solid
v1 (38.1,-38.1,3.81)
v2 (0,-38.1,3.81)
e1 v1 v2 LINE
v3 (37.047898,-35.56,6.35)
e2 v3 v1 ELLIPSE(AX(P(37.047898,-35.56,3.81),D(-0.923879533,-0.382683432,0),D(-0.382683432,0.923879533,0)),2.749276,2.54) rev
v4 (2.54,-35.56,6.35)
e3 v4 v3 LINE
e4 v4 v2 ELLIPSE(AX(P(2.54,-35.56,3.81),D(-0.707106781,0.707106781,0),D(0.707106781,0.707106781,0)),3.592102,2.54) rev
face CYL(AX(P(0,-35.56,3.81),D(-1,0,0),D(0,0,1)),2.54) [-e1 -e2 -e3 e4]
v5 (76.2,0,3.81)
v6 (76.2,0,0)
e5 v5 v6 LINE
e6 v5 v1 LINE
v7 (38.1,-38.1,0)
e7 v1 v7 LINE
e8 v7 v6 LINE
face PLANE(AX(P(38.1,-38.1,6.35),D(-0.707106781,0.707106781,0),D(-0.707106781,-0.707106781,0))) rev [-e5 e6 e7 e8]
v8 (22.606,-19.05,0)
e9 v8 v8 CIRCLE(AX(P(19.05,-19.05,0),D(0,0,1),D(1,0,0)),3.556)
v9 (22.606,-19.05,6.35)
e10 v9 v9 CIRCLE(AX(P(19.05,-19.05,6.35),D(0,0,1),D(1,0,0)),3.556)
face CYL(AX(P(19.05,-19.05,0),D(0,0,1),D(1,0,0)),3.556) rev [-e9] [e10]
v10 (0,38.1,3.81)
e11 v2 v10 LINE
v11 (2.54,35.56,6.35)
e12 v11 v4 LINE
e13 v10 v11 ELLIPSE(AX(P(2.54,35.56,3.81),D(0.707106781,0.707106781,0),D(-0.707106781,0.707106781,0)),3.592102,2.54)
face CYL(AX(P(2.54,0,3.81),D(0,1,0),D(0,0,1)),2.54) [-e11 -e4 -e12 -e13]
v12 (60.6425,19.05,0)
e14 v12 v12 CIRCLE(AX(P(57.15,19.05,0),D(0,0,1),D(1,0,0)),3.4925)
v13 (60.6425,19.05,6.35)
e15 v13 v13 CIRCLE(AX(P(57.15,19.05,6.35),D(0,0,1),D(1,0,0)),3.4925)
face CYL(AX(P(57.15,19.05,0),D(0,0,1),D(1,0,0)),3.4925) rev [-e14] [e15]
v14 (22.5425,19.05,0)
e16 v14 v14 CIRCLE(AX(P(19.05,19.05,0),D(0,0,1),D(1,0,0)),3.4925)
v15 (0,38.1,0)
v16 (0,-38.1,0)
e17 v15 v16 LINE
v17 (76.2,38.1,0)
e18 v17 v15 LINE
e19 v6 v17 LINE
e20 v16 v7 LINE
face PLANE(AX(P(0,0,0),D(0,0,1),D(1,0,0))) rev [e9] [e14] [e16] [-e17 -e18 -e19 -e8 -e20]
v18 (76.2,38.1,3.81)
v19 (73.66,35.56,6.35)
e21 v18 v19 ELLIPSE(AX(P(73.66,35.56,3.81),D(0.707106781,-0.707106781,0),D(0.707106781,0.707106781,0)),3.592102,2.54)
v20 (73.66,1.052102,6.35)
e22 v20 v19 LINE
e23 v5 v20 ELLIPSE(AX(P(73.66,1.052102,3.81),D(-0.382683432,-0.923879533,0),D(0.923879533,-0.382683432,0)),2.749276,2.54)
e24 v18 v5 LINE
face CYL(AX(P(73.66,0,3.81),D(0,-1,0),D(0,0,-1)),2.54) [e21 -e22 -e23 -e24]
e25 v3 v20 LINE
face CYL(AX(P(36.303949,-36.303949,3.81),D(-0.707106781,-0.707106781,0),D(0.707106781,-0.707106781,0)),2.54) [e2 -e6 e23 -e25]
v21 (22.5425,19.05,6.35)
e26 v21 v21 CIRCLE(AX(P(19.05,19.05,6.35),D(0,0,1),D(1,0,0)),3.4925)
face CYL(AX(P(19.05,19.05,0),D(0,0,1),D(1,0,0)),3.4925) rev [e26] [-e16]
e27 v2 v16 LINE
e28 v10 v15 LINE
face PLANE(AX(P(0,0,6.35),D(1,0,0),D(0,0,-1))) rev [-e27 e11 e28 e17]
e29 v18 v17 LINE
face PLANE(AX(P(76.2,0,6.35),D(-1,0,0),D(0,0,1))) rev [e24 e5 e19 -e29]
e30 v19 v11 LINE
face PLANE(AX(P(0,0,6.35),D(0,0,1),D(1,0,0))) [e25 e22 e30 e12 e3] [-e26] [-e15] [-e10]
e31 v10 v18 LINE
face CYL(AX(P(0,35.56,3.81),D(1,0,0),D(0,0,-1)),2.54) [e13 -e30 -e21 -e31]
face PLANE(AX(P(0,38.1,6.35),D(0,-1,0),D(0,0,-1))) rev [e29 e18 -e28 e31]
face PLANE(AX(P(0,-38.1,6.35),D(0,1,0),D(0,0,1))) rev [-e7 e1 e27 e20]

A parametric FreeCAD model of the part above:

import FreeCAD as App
import Part
import Sketcher
from FreeCAD import Vector
Q = App.Units.Quantity


def edges_at(feature, points):
    """Names of the edges that pass closest to the given points."""
    edges = feature.Shape.Edges
    near = lambda p: min(range(len(edges)), key=lambda i: edges[i].distToShape(Part.Vertex(*p))[0])
    return sorted({f"Edge{near(p) + 1}" for p in points})

doc = App.newDocument("Part")
body = doc.addObject("PartDesign::Body", "Body")

# Sketch on XY plane
sketch1 = body.newObject("Sketcher::SketchObject", "Sketch")
sketch1.AttachmentSupport = (doc.getObject("XY_Plane"), [""])
sketch1.MapMode = "FlatFace"
sketch1.addGeometry(Part.LineSegment(Vector(38, -38, 0), Vector(76, 0, 0)), False)
sketch1.addGeometry(Part.LineSegment(Vector(76, 0, 0), Vector(76, 38, 0)), False)
sketch1.addGeometry(Part.LineSegment(Vector(76, 38, 0), Vector(0, 38, 0)), False)
sketch1.addGeometry(Part.LineSegment(Vector(0, 38, 0), Vector(0, -38, 0)), False)
sketch1.addGeometry(Part.LineSegment(Vector(0, -38, 0), Vector(38, -38, 0)), False)
sketch1.addConstraint(Sketcher.Constraint("Coincident", 0, 2, 1, 1))
sketch1.addConstraint(Sketcher.Constraint("Coincident", 1, 2, 2, 1))
sketch1.addConstraint(Sketcher.Constraint("Coincident", 2, 2, 3, 1))
sketch1.addConstraint(Sketcher.Constraint("Coincident", 3, 2, 4, 1))
sketch1.addConstraint(Sketcher.Constraint("Coincident", 4, 2, 0, 1))
sketch1.addConstraint(Sketcher.Constraint("Vertical", 1))
sketch1.addConstraint(Sketcher.Constraint("Horizontal", 2))
sketch1.addConstraint(Sketcher.Constraint("Vertical", 3))
sketch1.addConstraint(Sketcher.Constraint("Horizontal", 4))
sketch1.addConstraint(Sketcher.Constraint("Symmetric", 2, 2, 3, 2, -1, 1))
sketch1.addConstraint(Sketcher.Constraint("PointOnObject", 0, 2, -1))
sketch1.addConstraint(Sketcher.Constraint("Equal", 4, 1))
sketch1.addConstraint(Sketcher.Constraint("Equal", 2, 3))
sketch1.addConstraint(Sketcher.Constraint("DistanceX", 2, 2, 2, 1, Q("3 in")))
pad1 = body.newObject("PartDesign::Pad", "Pad")
pad1.Profile = sketch1
pad1.Length = Q("0.25 in")

# Sketch on XY plane
sketch2 = body.newObject("Sketcher::SketchObject", "Sketch001")
sketch2.AttachmentSupport = (doc.getObject("XY_Plane"), [""])
sketch2.MapMode = "FlatFace"
sketch2.AttachmentOffset = App.Placement(Vector(0, 0, 0.25 * 25.4), App.Rotation())
sketch2.addGeometry(Part.Circle(Vector(19.1, 19.1, 0), Vector(0, 0, 1), 3.5), False)
sketch2.addGeometry(Part.Circle(Vector(57.1, 19.1, 0), Vector(0, 0, 1), 3.5), False)
sketch2.addGeometry(Part.Circle(Vector(19.1, -19.1, 0), Vector(0, 0, 1), 3.6), False)
sketch2.addConstraint(Sketcher.Constraint("Equal", 0, 1))
sketch2.addConstraint(Sketcher.Constraint("Symmetric", 0, 3, 2, 3, -1))
sketch2.addConstraint(Sketcher.Constraint("Horizontal", 0, 3, 1, 3))
sketch2.addConstraint(Sketcher.Constraint("Diameter", 2, Q("0.28 in")))
sketch2.addConstraint(Sketcher.Constraint("Diameter", 0, Q("0.275 in")))
sketch2.addConstraint(Sketcher.Constraint("DistanceX", 0, 3, 1, 3, Q("1.5 in")))
sketch2.addConstraint(Sketcher.Constraint("DistanceY", 2, 3, 0, 3, Q("1.5 in")))
sketch2.addConstraint(Sketcher.Constraint("DistanceX", -1, 1, 0, 3, Q("0.75 in")))
pocket1 = body.newObject("PartDesign::Pocket", "Pocket")
pocket1.Profile = sketch2
pocket1.Length = Q("0.25 in")
doc.recompute()

fillet = body.newObject("PartDesign::Fillet", "Fillet")
fillet.Base = (pocket1, edges_at(pocket1, [
    (57.15, -19.05, 6.35),
    (76.2, 19.05, 6.35),
    (38.1, 38.1, 6.35),
    (0, 0, 6.35),
    (19.05, -38.1, 6.35),
]))
fillet.Radius = Q("0.1 in")

doc.recompute()
